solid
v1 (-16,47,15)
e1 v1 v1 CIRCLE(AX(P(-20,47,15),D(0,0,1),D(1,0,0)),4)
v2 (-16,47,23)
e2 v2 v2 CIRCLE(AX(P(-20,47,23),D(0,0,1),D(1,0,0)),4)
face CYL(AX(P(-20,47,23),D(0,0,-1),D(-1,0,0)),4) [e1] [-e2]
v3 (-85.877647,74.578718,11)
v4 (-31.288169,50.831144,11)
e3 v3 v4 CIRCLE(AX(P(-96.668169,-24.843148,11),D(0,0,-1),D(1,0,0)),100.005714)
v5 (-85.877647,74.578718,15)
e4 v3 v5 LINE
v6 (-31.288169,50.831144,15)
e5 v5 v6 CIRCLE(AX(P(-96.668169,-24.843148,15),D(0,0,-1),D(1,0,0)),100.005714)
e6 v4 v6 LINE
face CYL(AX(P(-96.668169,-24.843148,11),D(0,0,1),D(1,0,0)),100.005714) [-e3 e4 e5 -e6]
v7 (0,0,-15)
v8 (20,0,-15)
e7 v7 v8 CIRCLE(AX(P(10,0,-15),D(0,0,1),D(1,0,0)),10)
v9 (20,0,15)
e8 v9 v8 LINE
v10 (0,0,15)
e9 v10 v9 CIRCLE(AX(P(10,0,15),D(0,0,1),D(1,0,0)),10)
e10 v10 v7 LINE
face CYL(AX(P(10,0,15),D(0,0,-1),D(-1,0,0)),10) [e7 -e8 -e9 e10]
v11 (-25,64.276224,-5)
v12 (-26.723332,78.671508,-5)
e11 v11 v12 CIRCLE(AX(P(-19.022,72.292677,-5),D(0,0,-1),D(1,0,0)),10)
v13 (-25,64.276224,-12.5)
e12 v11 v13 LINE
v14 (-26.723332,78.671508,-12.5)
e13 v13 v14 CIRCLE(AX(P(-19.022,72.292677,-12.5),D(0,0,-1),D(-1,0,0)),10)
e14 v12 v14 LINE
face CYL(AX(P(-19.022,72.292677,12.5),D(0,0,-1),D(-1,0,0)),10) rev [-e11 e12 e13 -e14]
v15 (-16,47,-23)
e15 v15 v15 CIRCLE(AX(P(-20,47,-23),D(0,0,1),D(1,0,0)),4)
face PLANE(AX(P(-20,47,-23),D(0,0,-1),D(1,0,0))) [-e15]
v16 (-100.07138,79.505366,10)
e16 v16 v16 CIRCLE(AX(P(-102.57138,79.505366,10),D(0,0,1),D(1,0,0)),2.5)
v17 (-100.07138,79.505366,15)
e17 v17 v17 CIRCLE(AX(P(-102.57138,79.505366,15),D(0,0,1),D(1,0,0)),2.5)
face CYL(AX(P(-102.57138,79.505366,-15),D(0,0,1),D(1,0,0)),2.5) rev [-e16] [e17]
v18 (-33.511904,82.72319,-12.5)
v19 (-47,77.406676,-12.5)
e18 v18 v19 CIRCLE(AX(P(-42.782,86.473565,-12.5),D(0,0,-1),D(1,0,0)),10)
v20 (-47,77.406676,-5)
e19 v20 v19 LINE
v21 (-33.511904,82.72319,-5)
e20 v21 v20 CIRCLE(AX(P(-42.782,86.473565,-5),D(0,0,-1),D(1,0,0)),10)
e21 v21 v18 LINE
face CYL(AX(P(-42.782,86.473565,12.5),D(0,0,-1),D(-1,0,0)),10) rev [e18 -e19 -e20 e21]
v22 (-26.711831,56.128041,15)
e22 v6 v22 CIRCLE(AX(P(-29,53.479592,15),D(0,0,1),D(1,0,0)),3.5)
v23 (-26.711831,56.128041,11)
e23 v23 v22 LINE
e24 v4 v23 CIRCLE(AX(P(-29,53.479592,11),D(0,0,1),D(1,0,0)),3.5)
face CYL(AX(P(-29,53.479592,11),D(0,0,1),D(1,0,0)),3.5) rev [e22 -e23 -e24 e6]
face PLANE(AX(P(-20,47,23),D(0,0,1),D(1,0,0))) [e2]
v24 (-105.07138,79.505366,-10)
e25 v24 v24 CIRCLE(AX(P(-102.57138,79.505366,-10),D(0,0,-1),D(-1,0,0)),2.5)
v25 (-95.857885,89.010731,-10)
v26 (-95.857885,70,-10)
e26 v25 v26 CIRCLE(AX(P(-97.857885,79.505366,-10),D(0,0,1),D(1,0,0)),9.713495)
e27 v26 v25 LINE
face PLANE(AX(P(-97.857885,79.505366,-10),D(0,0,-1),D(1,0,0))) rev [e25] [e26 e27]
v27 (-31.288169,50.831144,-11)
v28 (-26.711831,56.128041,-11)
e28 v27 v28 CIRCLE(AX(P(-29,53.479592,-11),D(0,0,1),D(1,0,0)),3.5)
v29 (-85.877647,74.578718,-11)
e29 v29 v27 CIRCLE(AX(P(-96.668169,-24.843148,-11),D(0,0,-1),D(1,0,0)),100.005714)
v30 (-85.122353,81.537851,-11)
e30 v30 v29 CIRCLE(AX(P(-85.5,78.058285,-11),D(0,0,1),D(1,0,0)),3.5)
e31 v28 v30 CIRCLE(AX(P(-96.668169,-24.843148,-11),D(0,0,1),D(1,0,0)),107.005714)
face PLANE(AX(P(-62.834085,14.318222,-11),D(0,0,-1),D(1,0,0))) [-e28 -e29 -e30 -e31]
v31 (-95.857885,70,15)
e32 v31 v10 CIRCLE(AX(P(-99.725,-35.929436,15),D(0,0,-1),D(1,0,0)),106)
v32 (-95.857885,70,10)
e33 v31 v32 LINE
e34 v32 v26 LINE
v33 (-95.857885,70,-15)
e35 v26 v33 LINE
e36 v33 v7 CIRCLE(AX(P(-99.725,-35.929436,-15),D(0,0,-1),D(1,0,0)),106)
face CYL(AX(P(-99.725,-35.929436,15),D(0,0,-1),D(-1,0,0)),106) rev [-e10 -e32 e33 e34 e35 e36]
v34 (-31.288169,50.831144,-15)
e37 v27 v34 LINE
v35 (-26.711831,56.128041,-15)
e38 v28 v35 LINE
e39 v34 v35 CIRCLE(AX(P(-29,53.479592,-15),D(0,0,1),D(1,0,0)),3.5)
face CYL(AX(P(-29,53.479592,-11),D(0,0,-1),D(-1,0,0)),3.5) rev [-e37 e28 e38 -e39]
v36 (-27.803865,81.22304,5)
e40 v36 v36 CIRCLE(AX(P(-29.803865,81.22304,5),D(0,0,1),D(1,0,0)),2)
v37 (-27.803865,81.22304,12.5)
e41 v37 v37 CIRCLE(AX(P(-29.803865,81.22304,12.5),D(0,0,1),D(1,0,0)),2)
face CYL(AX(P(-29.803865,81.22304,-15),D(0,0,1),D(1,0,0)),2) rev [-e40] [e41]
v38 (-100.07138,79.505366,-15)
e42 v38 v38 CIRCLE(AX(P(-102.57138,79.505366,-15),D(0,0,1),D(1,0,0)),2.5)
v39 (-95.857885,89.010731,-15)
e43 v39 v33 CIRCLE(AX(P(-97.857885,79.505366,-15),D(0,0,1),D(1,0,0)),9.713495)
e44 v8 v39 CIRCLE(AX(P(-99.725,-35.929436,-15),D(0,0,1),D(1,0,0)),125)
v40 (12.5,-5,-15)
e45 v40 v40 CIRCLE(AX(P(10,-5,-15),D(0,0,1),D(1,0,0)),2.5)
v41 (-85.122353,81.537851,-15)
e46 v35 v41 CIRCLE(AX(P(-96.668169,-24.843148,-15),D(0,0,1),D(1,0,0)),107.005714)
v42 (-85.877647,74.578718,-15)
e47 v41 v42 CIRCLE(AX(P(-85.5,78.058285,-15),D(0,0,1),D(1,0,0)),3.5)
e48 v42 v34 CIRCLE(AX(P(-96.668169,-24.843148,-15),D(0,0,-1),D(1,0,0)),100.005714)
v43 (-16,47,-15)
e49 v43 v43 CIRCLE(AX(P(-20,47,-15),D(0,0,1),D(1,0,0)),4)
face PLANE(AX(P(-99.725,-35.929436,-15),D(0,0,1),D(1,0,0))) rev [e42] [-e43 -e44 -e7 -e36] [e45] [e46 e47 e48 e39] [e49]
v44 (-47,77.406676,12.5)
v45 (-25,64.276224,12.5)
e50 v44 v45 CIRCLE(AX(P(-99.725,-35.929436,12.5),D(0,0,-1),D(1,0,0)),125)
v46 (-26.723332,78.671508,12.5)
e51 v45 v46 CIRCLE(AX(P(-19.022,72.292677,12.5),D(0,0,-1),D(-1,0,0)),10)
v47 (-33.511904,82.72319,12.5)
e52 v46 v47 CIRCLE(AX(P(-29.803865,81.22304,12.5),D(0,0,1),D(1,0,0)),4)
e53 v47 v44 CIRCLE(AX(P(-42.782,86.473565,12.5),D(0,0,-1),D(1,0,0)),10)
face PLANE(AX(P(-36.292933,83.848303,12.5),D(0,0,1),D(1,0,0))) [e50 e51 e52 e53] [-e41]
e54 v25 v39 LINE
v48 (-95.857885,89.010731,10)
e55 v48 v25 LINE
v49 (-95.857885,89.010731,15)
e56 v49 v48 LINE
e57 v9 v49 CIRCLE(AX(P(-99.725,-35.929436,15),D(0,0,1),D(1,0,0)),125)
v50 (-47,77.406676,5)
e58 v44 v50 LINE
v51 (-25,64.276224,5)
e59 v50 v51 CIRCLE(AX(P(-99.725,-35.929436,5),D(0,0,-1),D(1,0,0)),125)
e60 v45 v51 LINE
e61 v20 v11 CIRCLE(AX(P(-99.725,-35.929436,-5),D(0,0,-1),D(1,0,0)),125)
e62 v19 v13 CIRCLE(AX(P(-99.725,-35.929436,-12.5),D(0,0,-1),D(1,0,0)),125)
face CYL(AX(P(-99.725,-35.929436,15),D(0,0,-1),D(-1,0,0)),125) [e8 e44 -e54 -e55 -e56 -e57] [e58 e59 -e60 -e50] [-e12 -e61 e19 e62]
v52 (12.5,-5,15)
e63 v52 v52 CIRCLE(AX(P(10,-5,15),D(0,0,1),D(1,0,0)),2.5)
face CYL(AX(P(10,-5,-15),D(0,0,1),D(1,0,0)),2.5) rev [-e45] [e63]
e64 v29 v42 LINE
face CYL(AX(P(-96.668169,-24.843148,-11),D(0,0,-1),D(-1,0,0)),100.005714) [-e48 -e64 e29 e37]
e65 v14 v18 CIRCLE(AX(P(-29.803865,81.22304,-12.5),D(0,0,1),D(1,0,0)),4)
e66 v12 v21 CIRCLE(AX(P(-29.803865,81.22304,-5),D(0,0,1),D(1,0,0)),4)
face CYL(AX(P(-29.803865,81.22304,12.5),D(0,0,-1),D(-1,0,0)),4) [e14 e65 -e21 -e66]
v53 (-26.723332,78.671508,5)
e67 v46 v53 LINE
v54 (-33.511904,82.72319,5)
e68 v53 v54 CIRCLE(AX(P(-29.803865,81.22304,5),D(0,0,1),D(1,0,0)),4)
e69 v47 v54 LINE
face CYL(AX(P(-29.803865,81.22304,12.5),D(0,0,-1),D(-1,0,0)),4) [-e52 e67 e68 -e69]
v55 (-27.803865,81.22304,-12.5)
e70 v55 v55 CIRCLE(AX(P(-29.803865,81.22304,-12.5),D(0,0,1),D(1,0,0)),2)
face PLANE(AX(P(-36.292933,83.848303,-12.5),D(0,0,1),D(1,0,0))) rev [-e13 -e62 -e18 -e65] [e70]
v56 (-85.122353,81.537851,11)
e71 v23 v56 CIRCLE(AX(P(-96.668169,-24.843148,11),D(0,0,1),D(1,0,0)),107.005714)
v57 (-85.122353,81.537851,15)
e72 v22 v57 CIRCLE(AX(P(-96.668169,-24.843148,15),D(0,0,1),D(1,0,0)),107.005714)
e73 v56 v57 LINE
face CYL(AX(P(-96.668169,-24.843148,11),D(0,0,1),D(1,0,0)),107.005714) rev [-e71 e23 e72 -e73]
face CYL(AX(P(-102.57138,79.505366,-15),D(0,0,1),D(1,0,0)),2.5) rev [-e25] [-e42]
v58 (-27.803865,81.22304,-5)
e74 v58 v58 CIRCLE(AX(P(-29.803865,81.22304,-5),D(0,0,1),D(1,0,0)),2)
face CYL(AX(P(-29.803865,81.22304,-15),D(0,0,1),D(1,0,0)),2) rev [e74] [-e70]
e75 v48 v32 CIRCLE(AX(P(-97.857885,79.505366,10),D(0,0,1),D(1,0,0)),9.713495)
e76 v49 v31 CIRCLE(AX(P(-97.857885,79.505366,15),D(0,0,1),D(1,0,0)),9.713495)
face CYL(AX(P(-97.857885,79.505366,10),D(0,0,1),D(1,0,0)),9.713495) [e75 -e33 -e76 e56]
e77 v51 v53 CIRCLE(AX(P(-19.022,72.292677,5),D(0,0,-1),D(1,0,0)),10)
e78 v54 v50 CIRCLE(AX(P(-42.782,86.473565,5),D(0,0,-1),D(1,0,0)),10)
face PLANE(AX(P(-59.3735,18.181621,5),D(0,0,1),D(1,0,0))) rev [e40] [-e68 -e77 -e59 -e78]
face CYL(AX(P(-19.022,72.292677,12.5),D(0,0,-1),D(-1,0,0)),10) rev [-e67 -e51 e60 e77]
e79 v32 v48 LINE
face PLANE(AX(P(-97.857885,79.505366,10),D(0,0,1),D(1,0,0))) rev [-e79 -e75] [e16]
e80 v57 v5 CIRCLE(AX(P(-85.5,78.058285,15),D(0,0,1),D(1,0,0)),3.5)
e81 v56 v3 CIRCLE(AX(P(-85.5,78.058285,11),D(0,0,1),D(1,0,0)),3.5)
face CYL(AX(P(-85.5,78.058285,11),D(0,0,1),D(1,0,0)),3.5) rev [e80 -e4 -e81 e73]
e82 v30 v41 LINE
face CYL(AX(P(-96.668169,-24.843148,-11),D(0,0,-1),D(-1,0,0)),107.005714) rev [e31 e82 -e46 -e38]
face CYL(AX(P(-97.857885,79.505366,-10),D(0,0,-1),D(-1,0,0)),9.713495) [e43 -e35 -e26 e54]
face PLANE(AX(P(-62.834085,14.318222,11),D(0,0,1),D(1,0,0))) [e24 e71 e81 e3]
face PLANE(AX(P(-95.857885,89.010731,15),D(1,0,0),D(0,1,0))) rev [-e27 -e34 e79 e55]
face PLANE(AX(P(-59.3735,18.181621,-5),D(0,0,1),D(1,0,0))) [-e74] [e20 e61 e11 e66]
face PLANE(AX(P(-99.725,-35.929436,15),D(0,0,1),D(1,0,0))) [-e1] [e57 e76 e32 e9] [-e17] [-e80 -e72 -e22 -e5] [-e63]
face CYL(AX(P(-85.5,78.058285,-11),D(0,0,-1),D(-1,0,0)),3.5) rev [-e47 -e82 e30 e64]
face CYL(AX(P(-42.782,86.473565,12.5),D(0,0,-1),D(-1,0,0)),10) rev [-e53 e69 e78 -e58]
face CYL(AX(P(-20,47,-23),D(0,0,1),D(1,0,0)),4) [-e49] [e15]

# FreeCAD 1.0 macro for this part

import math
import FreeCAD as App
import Part
import Sketcher

V = App.Vector

doc = App.newDocument("Part")
body = doc.addObject("PartDesign::Body", "Body")

# Sketch on XY plane
sketch1 = body.newObject("Sketcher::SketchObject", "Sketch")
sketch1.AttachmentSupport = (doc.getObject("XY_Plane"), [""])
sketch1.MapMode = "FlatFace"
sketch1.addGeometry(Part.LineSegment(V(-96, 89, 0), V(-96, 70, 0)), False)
sketch1.addGeometry(Part.ArcOfCircle(Part.Circle(V(-100, -36, 0), V(0, 0, 1), 106), math.radians(20), math.radians(88)), False)
sketch1.addGeometry(Part.LineSegment(V(0, 0, 0), V(20, 0, 0)), False)
sketch1.addGeometry(Part.ArcOfCircle(Part.Circle(V(-100, -36, 0), V(0, 0, 1), 125), math.radians(17), math.radians(88)), False)
sketch1.addConstraint(Sketcher.Constraint("Coincident", 0, 2, 1, 2))
sketch1.addConstraint(Sketcher.Constraint("Coincident", 1, 1, 2, 1))
sketch1.addConstraint(Sketcher.Constraint("Coincident", 2, 2, 3, 1))
sketch1.addConstraint(Sketcher.Constraint("Coincident", 3, 2, 0, 1))
sketch1.addConstraint(Sketcher.Constraint("Vertical", 0))
sketch1.addConstraint(Sketcher.Constraint("Horizontal", 2))
sketch1.addConstraint(Sketcher.Constraint("Coincident", 1, 1, -1, 1))
sketch1.addConstraint(Sketcher.Constraint("Coincident", 3, 3, 1, 3))
sketch1.addConstraint(Sketcher.Constraint("Radius", 1, 106.0))
sketch1.addConstraint(Sketcher.Constraint("Radius", 3, 125.0))
sketch1.addConstraint(Sketcher.Constraint("DistanceX", 2, 1, 2, 2, 20.0))
sketch1.addConstraint(Sketcher.Constraint("DistanceY", -1, 1, 0, 2, 70.0))
pad1 = body.newObject("PartDesign::Pad", "Pad")
pad1.Profile = sketch1
pad1.Length = 30
pad1.Midplane = True

# Sketch on XY plane
sketch2 = body.newObject("Sketcher::SketchObject", "Sketch001")
sketch2.AttachmentSupport = (doc.getObject("XY_Plane"), [""])
sketch2.MapMode = "FlatFace"
sketch2.AttachmentOffset = App.Placement(V(0, 0, 15), App.Rotation())
sketch2.addGeometry(Part.LineSegment(V(-96, 70, 0), V(-96, 89, 0)), False)
sketch2.addGeometry(Part.ArcOfCircle(Part.Circle(V(-98, 80, 0), V(0, 0, 1), 10), math.radians(78), math.radians(282)), False)
sketch2.addConstraint(Sketcher.Constraint("Coincident", 0, 1, 1, 2))
sketch2.addConstraint(Sketcher.Constraint("Coincident", 1, 1, 0, 2))
sketch2.addConstraint(Sketcher.Constraint("Vertical", 0))
sketch2.addConstraint(Sketcher.Constraint("DistanceY", -1, 1, 0, 1, 70.0))
sketch2.addConstraint(Sketcher.Constraint("DistanceX", 1, 3, 0, 1, 2.0))
sketch2.addConstraint(Sketcher.Constraint("Radius", 1, 9.713495))
sketch2.addConstraint(Sketcher.Constraint("DistanceX", 1, 3, -1, 1, 97.857885))
pad2 = body.newObject("PartDesign::Pad", "Pad001")
pad2.Profile = sketch2
pad2.Length = 5
pad2.Reversed = True
doc.recompute()

mirrored = body.newObject("PartDesign::Mirrored", "Mirrored")
mirrored.Originals = [pad2]
mirrored.MirrorPlane = (doc.getObject("XY_Plane"), [""])
body.Tip = mirrored

# Sketch on XY plane
sketch3 = body.newObject("Sketcher::SketchObject", "Sketch002")
sketch3.AttachmentSupport = (doc.getObject("XY_Plane"), [""])
sketch3.MapMode = "FlatFace"
sketch3.AttachmentOffset = App.Placement(V(0, 0, 15), App.Rotation())
sketch3.addGeometry(Part.Circle(V(-102.6, 79.5, 0), V(0, 0, 1), 2.5), False)
sketch3.addConstraint(Sketcher.Constraint("Diameter", 0, 5.0))
sketch3.addConstraint(Sketcher.Constraint("DistanceX", 0, 3, -1, 1, 102.57138))
sketch3.addConstraint(Sketcher.Constraint("DistanceY", -1, 1, 0, 3, 79.505366))
pocket1 = body.newObject("PartDesign::Pocket", "Pocket")
pocket1.Profile = sketch3
pocket1.Type = "ThroughAll"

# Sketch on XY plane
sketch4 = body.newObject("Sketcher::SketchObject", "Sketch003")
sketch4.AttachmentSupport = (doc.getObject("XY_Plane"), [""])
sketch4.MapMode = "FlatFace"
sketch4.addGeometry(Part.ArcOfCircle(Part.Circle(V(-99.7, -35.9, 0), V(0, 0, 1), 125), math.radians(53.29), math.radians(65.05)), False)
sketch4.addGeometry(Part.ArcOfCircle(Part.Circle(V(-19, 72.3, 0), V(0, 0, 1), 10), math.radians(140), math.radians(233)), False)
sketch4.addGeometry(Part.ArcOfCircle(Part.Circle(V(-29.8, 81.2, 0), V(0, 0, 1), 4), math.radians(-40), math.radians(158)), False)
sketch4.addGeometry(Part.ArcOfCircle(Part.Circle(V(-42.8, 86.5, 0), V(0, 0, 1), 10), math.radians(-115), math.radians(-22)), False)
sketch4.addConstraint(Sketcher.Constraint("Tangent", 0, 1, 1, 2))
sketch4.addConstraint(Sketcher.Constraint("Tangent", 1, 1, 2, 1))
sketch4.addConstraint(Sketcher.Constraint("Tangent", 2, 2, 3, 2))
sketch4.addConstraint(Sketcher.Constraint("Tangent", 3, 1, 0, 2))
sketch4.addConstraint(Sketcher.Constraint("Equal", 1, 3))
sketch4.addConstraint(Sketcher.Constraint("Radius", 0, 125.0))
sketch4.addConstraint(Sketcher.Constraint("Radius", 1, 10.0))
sketch4.addConstraint(Sketcher.Constraint("Radius", 2, 4.0))
sketch4.addConstraint(Sketcher.Constraint("DistanceX", 0, 1, -1, 1, 25.0))
sketch4.addConstraint(Sketcher.Constraint("DistanceX", 3, 1, -1, 1, 47.0))
sketch4.addConstraint(Sketcher.Constraint("DistanceX", 0, 3, -1, 1, 99.725))
sketch4.addConstraint(Sketcher.Constraint("DistanceY", -1, 1, 2, 3, 81.22304))
pad3 = body.newObject("PartDesign::Pad", "Pad002")
pad3.Profile = sketch4
pad3.Length = 25
pad3.Midplane = True

# Sketch on XY plane
sketch5 = body.newObject("Sketcher::SketchObject", "Sketch004")
sketch5.AttachmentSupport = (doc.getObject("XY_Plane"), [""])
sketch5.MapMode = "FlatFace"
sketch5.addGeometry(Part.ArcOfCircle(Part.Circle(V(-99.7, -35.9, 0), V(0, 0, 1), 125), math.radians(53.29), math.radians(65.05)), False)
sketch5.addGeometry(Part.ArcOfCircle(Part.Circle(V(-19, 72.3, 0), V(0, 0, 1), 10), math.radians(140), math.radians(233)), False)
sketch5.addGeometry(Part.ArcOfCircle(Part.Circle(V(-29.8, 81.2, 0), V(0, 0, 1), 4), math.radians(-40), math.radians(158)), False)
sketch5.addGeometry(Part.ArcOfCircle(Part.Circle(V(-42.8, 86.5, 0), V(0, 0, 1), 10), math.radians(-115), math.radians(-22)), False)
sketch5.addConstraint(Sketcher.Constraint("Tangent", 0, 1, 1, 2))
sketch5.addConstraint(Sketcher.Constraint("Tangent", 1, 1, 2, 1))
sketch5.addConstraint(Sketcher.Constraint("Tangent", 2, 2, 3, 2))
sketch5.addConstraint(Sketcher.Constraint("Tangent", 3, 1, 0, 2))
sketch5.addConstraint(Sketcher.Constraint("Equal", 1, 3))
sketch5.addConstraint(Sketcher.Constraint("Radius", 0, 125.0))
sketch5.addConstraint(Sketcher.Constraint("Radius", 1, 10.0))
sketch5.addConstraint(Sketcher.Constraint("Radius", 2, 4.0))
sketch5.addConstraint(Sketcher.Constraint("DistanceX", 0, 1, -1, 1, 25.0))
sketch5.addConstraint(Sketcher.Constraint("DistanceX", 3, 1, -1, 1, 47.0))
sketch5.addConstraint(Sketcher.Constraint("DistanceX", 0, 3, -1, 1, 99.725))
sketch5.addConstraint(Sketcher.Constraint("DistanceY", -1, 1, 2, 3, 81.22304))
pocket2 = body.newObject("PartDesign::Pocket", "Pocket001")
pocket2.Profile = sketch5
pocket2.Length = 10
pocket2.Midplane = True

# Sketch on XY plane
sketch6 = body.newObject("Sketcher::SketchObject", "Sketch005")
sketch6.AttachmentSupport = (doc.getObject("XY_Plane"), [""])
sketch6.MapMode = "FlatFace"
sketch6.AttachmentOffset = App.Placement(V(0, 0, 12.5), App.Rotation())
sketch6.addGeometry(Part.Circle(V(-29.8, 81.2, 0), V(0, 0, 1), 2), False)
sketch6.addConstraint(Sketcher.Constraint("Diameter", 0, 4.0))
sketch6.addConstraint(Sketcher.Constraint("DistanceY", -1, 1, 0, 3, 81.22304))
sketch6.addConstraint(Sketcher.Constraint("DistanceX", 0, 3, -1, 1, 29.803865))
pocket3 = body.newObject("PartDesign::Pocket", "Pocket002")
pocket3.Profile = sketch6
pocket3.Type = "ThroughAll"

# Sketch on XY plane
sketch7 = body.newObject("Sketcher::SketchObject", "Sketch006")
sketch7.AttachmentSupport = (doc.getObject("XY_Plane"), [""])
sketch7.MapMode = "FlatFace"
sketch7.AttachmentOffset = App.Placement(V(0, 0, 15), App.Rotation())
sketch7.addGeometry(Part.Circle(V(-20, 47, 0), V(0, 0, 1), 4), False)
sketch7.addConstraint(Sketcher.Constraint("Diameter", 0, 8.0))
sketch7.addConstraint(Sketcher.Constraint("DistanceX", 0, 3, -1, 1, 20.0))
sketch7.addConstraint(Sketcher.Constraint("DistanceY", -1, 1, 0, 3, 47.0))
pad4 = body.newObject("PartDesign::Pad", "Pad003")
pad4.Profile = sketch7
pad4.Length = 8
doc.recompute()

mirrored2 = body.newObject("PartDesign::Mirrored", "Mirrored001")
mirrored2.Originals = [pad4]
mirrored2.MirrorPlane = (doc.getObject("XY_Plane"), [""])
body.Tip = mirrored2

# Sketch on XY plane
sketch8 = body.newObject("Sketcher::SketchObject", "Sketch007")
sketch8.AttachmentSupport = (doc.getObject("XY_Plane"), [""])
sketch8.MapMode = "FlatFace"
sketch8.AttachmentOffset = App.Placement(V(0, 0, 15), App.Rotation())
sketch8.addGeometry(Part.ArcOfCircle(Part.Circle(V(-96.7, -24.8, 0), V(0, 0, 1), 107), math.radians(49), math.radians(84)), False)
sketch8.addGeometry(Part.ArcOfCircle(Part.Circle(V(-85.5, 78.1, 0), V(0, 0, 1), 3.5), math.radians(84), math.radians(264)), False)
sketch8.addGeometry(Part.ArcOfCircle(Part.Circle(V(-96.7, -24.8, 0), V(0, 0, 1), 100), math.radians(49), math.radians(84)), False)
sketch8.addGeometry(Part.ArcOfCircle(Part.Circle(V(-29, 53.5, 0), V(0, 0, 1), 3.5), math.radians(-131), math.radians(49)), False)
sketch8.addConstraint(Sketcher.Constraint("Tangent", 0, 2, 1, 1))
sketch8.addConstraint(Sketcher.Constraint("Tangent", 1, 2, 2, 2))
sketch8.addConstraint(Sketcher.Constraint("Tangent", 2, 1, 3, 1))
sketch8.addConstraint(Sketcher.Constraint("Tangent", 3, 2, 0, 1))
sketch8.addConstraint(Sketcher.Constraint("Coincident", 2, 3, 0, 3))
sketch8.addConstraint(Sketcher.Constraint("Radius", 1, 3.5))
sketch8.addConstraint(Sketcher.Constraint("DistanceX", 3, 3, -1, 1, 29.0))
sketch8.addConstraint(Sketcher.Constraint("DistanceX", 1, 3, -1, 1, 85.5))
sketch8.addConstraint(Sketcher.Constraint("DistanceX", 2, 3, 2, 1, 65.38))
sketch8.addConstraint(Sketcher.Constraint("Radius", 0, 107.005714))
sketch8.addConstraint(Sketcher.Constraint("DistanceY", -1, 1, 0, 2, 81.537851))
pocket4 = body.newObject("PartDesign::Pocket", "Pocket003")
pocket4.Profile = sketch8
pocket4.Length = 4
doc.recompute()

mirrored3 = body.newObject("PartDesign::Mirrored", "Mirrored002")
mirrored3.Originals = [pocket4]
mirrored3.MirrorPlane = (doc.getObject("XY_Plane"), [""])
body.Tip = mirrored3

# Sketch on XY plane
sketch9 = body.newObject("Sketcher::SketchObject", "Sketch008")
sketch9.AttachmentSupport = (doc.getObject("XY_Plane"), [""])
sketch9.MapMode = "FlatFace"
sketch9.addGeometry(Part.LineSegment(V(20, 0, 0), V(0, 0, 0)), False)
sketch9.addGeometry(Part.ArcOfCircle(Part.Circle(V(10, 0, 0), V(0, 0, 1), 10), math.radians(180), math.radians(360)), False)
sketch9.addConstraint(Sketcher.Constraint("Coincident", 0, 1, 1, 2))
sketch9.addConstraint(Sketcher.Constraint("Coincident", 1, 1, 0, 2))
sketch9.addConstraint(Sketcher.Constraint("Horizontal", 0))
sketch9.addConstraint(Sketcher.Constraint("Coincident", 1, 1, -1, 1))
sketch9.addConstraint(Sketcher.Constraint("PointOnObject", 1, 3, -1))
sketch9.addConstraint(Sketcher.Constraint("Radius", 1, 10.0))
pad5 = body.newObject("PartDesign::Pad", "Pad004")
pad5.Profile = sketch9
pad5.Length = 30
pad5.Midplane = True

# Sketch on XY plane
sketch10 = body.newObject("Sketcher::SketchObject", "Sketch009")
sketch10.AttachmentSupport = (doc.getObject("XY_Plane"), [""])
sketch10.MapMode = "FlatFace"
sketch10.AttachmentOffset = App.Placement(V(0, 0, 15), App.Rotation())
sketch10.addGeometry(Part.Circle(V(10, -5, 0), V(0, 0, 1), 2.5), False)
sketch10.addConstraint(Sketcher.Constraint("Diameter", 0, 5.0))
sketch10.addConstraint(Sketcher.Constraint("DistanceX", -1, 1, 0, 3, 10.0))
sketch10.addConstraint(Sketcher.Constraint("DistanceY", 0, 3, -1, 1, 5.0))
pocket5 = body.newObject("PartDesign::Pocket", "Pocket004")
pocket5.Profile = sketch10
pocket5.Length = 30

doc.recompute()
